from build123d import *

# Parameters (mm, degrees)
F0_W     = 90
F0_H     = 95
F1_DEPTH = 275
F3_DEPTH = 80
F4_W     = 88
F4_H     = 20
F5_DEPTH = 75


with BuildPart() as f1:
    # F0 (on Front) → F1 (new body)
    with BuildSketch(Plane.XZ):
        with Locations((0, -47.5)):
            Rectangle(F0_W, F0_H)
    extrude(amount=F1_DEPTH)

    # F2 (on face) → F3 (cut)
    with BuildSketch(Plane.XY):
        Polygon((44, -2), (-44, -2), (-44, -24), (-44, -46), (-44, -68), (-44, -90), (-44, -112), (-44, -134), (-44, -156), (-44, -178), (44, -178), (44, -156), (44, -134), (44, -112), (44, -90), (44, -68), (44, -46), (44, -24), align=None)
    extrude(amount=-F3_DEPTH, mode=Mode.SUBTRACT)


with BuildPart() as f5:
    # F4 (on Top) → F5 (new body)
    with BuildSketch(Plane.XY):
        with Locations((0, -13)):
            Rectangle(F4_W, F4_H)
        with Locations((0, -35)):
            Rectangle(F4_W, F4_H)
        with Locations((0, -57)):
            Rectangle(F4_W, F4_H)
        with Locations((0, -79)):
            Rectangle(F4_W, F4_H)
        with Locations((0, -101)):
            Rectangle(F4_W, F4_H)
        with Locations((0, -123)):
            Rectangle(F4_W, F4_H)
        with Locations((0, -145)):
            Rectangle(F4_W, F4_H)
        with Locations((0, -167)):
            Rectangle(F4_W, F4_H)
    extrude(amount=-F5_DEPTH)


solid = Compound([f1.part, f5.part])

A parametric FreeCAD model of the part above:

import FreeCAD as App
import Part
import Sketcher
from FreeCAD import Vector


def add_polygon(sketch, points):
    """Adds a closed chain of lines whose ends are joined by coincident constraints."""
    first, n = sketch.GeometryCount, len(points)
    for a, b in zip(points, points[1:] + points[:1]):
        sketch.addGeometry(Part.LineSegment(App.Vector(*a, 0), App.Vector(*b, 0)), False)
    for i in range(n):
        sketch.addConstraint(Sketcher.Constraint("Coincident", first + i, 2, first + (i + 1) % n, 1))

doc = App.newDocument("Part")
body = doc.addObject("PartDesign::Body", "Body")

# Sketch on XZ plane
sketch1 = doc.addObject("Sketcher::SketchObject", "Sketch")
body.addObject(sketch1)
sketch1.AttachmentSupport = (doc.XZ_Plane, [""])
sketch1.MapMode = "FlatFace"
add_polygon(sketch1, [(-45, 0), (-45, -95), (45, -95), (45, 0)])  # lines 0-3
sketch1.addConstraint(Sketcher.Constraint("Vertical", 0))
sketch1.addConstraint(Sketcher.Constraint("Horizontal", 1))
sketch1.addConstraint(Sketcher.Constraint("Vertical", 2))
sketch1.addConstraint(Sketcher.Constraint("Horizontal", 3))
sketch1.addConstraint(Sketcher.Constraint("Symmetric", 2, 2, 3, 2, -1, 1))
sketch1.addConstraint(Sketcher.Constraint("DistanceX", 1, 1, 1, 2, 90.0))
sketch1.addConstraint(Sketcher.Constraint("DistanceY", 0, 2, 0, 1, 95.0))
pad1 = doc.addObject("PartDesign::Pad", "Pad")
body.addObject(pad1)
pad1.Profile = sketch1
pad1.Length = 275

# Sketch on XY plane
sketch2 = doc.addObject("Sketcher::SketchObject", "Sketch001")
body.addObject(sketch2)
sketch2.AttachmentSupport = (doc.XY_Plane, [""])
sketch2.MapMode = "FlatFace"
add_polygon(sketch2, [(44, -2), (-44, -2), (-44, -178), (44, -178)])  # lines 0-3
sketch2.addConstraint(Sketcher.Constraint("Horizontal", 0))
sketch2.addConstraint(Sketcher.Constraint("Vertical", 1))
sketch2.addConstraint(Sketcher.Constraint("Horizontal", 2))
sketch2.addConstraint(Sketcher.Constraint("Vertical", 3))
sketch2.addConstraint(Sketcher.Constraint("DistanceX", 0, 2, 0, 1, 88.0))
sketch2.addConstraint(Sketcher.Constraint("DistanceY", 1, 2, 1, 1, 176.0))
sketch2.addConstraint(Sketcher.Constraint("DistanceX", 0, 2, -1, 1, 44.0))
sketch2.addConstraint(Sketcher.Constraint("DistanceY", 0, 2, -1, 1, 2.0))
pocket1 = doc.addObject("PartDesign::Pocket", "Pocket")
body.addObject(pocket1)
pocket1.Profile = sketch2
pocket1.Length = 80
body2 = doc.addObject("PartDesign::Body", "Body001")
body2.AllowCompound = True

# Sketch on XY plane
sketch3 = doc.addObject("Sketcher::SketchObject", "Sketch002")
body2.addObject(sketch3)
sketch3.AttachmentSupport = (doc.getObject("XY_Plane001"), [""])
sketch3.MapMode = "FlatFace"
add_polygon(sketch3, [(-44, -3), (-44, -23), (44, -23), (44, -3)])  # lines 0-3
add_polygon(sketch3, [(-44, -25), (-44, -45), (44, -45), (44, -25)])  # lines 4-7
add_polygon(sketch3, [(-44, -47), (-44, -67), (44, -67), (44, -47)])  # lines 8-11
add_polygon(sketch3, [(-44, -69), (-44, -89), (44, -89), (44, -69)])  # lines 12-15
add_polygon(sketch3, [(-44, -91), (-44, -111), (44, -111), (44, -91)])  # lines 16-19
add_polygon(sketch3, [(-44, -113), (-44, -133), (44, -133), (44, -113)])  # lines 20-23
add_polygon(sketch3, [(-44, -135), (-44, -155), (44, -155), (44, -135)])  # lines 24-27
add_polygon(sketch3, [(-44, -157), (-44, -177), (44, -177), (44, -157)])  # lines 28-31
sketch3.addConstraint(Sketcher.Constraint("Vertical", 0))
sketch3.addConstraint(Sketcher.Constraint("Horizontal", 1))
sketch3.addConstraint(Sketcher.Constraint("Vertical", 2))
sketch3.addConstraint(Sketcher.Constraint("Horizontal", 3))
sketch3.addConstraint(Sketcher.Constraint("Vertical", 4))
sketch3.addConstraint(Sketcher.Constraint("Horizontal", 5))
sketch3.addConstraint(Sketcher.Constraint("Vertical", 6))
sketch3.addConstraint(Sketcher.Constraint("Horizontal", 7))
sketch3.addConstraint(Sketcher.Constraint("Vertical", 8))
sketch3.addConstraint(Sketcher.Constraint("Horizontal", 9))
sketch3.addConstraint(Sketcher.Constraint("Vertical", 10))
sketch3.addConstraint(Sketcher.Constraint("Horizontal", 11))
sketch3.addConstraint(Sketcher.Constraint("Vertical", 12))
sketch3.addConstraint(Sketcher.Constraint("Horizontal", 13))
sketch3.addConstraint(Sketcher.Constraint("Vertical", 14))
sketch3.addConstraint(Sketcher.Constraint("Horizontal", 15))
sketch3.addConstraint(Sketcher.Constraint("Vertical", 16))
sketch3.addConstraint(Sketcher.Constraint("Horizontal", 17))
sketch3.addConstraint(Sketcher.Constraint("Vertical", 18))
sketch3.addConstraint(Sketcher.Constraint("Horizontal", 19))
sketch3.addConstraint(Sketcher.Constraint("Vertical", 20))
sketch3.addConstraint(Sketcher.Constraint("Horizontal", 21))
sketch3.addConstraint(Sketcher.Constraint("Vertical", 22))
sketch3.addConstraint(Sketcher.Constraint("Horizontal", 23))
sketch3.addConstraint(Sketcher.Constraint("Vertical", 24))
sketch3.addConstraint(Sketcher.Constraint("Horizontal", 25))
sketch3.addConstraint(Sketcher.Constraint("Vertical", 26))
sketch3.addConstraint(Sketcher.Constraint("Horizontal", 27))
sketch3.addConstraint(Sketcher.Constraint("Vertical", 28))
sketch3.addConstraint(Sketcher.Constraint("Horizontal", 29))
sketch3.addConstraint(Sketcher.Constraint("Vertical", 30))
sketch3.addConstraint(Sketcher.Constraint("Horizontal", 31))
sketch3.addConstraint(Sketcher.Constraint("Vertical", 3, 2, 4, 2))
sketch3.addConstraint(Sketcher.Constraint("Vertical", 2, 2, 5, 2))
sketch3.addConstraint(Sketcher.Constraint("Vertical", 7, 2, 8, 2))
sketch3.addConstraint(Sketcher.Constraint("Vertical", 6, 2, 9, 2))
sketch3.addConstraint(Sketcher.Constraint("Vertical", 11, 2, 12, 2))
sketch3.addConstraint(Sketcher.Constraint("Vertical", 10, 2, 13, 2))
sketch3.addConstraint(Sketcher.Constraint("Vertical", 15, 2, 16, 2))
sketch3.addConstraint(Sketcher.Constraint("Vertical", 14, 2, 17, 2))
sketch3.addConstraint(Sketcher.Constraint("Vertical", 19, 2, 20, 2))
sketch3.addConstraint(Sketcher.Constraint("Vertical", 18, 2, 21, 2))
sketch3.addConstraint(Sketcher.Constraint("Vertical", 23, 2, 24, 2))
sketch3.addConstraint(Sketcher.Constraint("Vertical", 22, 2, 25, 2))
sketch3.addConstraint(Sketcher.Constraint("Vertical", 27, 2, 28, 2))
sketch3.addConstraint(Sketcher.Constraint("Vertical", 26, 2, 29, 2))
sketch3.addConstraint(Sketcher.Constraint("Equal", 2, 4))
sketch3.addConstraint(Sketcher.Constraint("Equal", 6, 8))
sketch3.addConstraint(Sketcher.Constraint("Equal", 10, 12))
sketch3.addConstraint(Sketcher.Constraint("Equal", 14, 16))
sketch3.addConstraint(Sketcher.Constraint("Equal", 18, 20))
sketch3.addConstraint(Sketcher.Constraint("Equal", 22, 24))
sketch3.addConstraint(Sketcher.Constraint("Equal", 26, 28))
sketch3.addConstraint(Sketcher.Constraint("DistanceX", 1, 1, 1, 2, 88.0))
sketch3.addConstraint(Sketcher.Constraint("DistanceY", 0, 2, 0, 1, 20.0))
sketch3.addConstraint(Sketcher.Constraint("DistanceX", 0, 2, -1, 1, 44.0))
sketch3.addConstraint(Sketcher.Constraint("DistanceY", 0, 2, -1, 1, 23.0))
sketch3.addConstraint(Sketcher.Constraint("DistanceY", 4, 2, -1, 1, 45.0))
sketch3.addConstraint(Sketcher.Constraint("DistanceY", 8, 2, -1, 1, 67.0))
sketch3.addConstraint(Sketcher.Constraint("DistanceY", 12, 2, -1, 1, 89.0))
sketch3.addConstraint(Sketcher.Constraint("DistanceY", 16, 2, -1, 1, 111.0))
sketch3.addConstraint(Sketcher.Constraint("DistanceY", 20, 2, -1, 1, 133.0))
sketch3.addConstraint(Sketcher.Constraint("DistanceY", 24, 2, -1, 1, 155.0))
sketch3.addConstraint(Sketcher.Constraint("DistanceY", 28, 2, -1, 1, 177.0))
pad2 = doc.addObject("PartDesign::Pad", "Pad001")
body2.addObject(pad2)
pad2.Profile = sketch3
pad2.Length = 75
pad2.Reversed = True

doc.recompute()
